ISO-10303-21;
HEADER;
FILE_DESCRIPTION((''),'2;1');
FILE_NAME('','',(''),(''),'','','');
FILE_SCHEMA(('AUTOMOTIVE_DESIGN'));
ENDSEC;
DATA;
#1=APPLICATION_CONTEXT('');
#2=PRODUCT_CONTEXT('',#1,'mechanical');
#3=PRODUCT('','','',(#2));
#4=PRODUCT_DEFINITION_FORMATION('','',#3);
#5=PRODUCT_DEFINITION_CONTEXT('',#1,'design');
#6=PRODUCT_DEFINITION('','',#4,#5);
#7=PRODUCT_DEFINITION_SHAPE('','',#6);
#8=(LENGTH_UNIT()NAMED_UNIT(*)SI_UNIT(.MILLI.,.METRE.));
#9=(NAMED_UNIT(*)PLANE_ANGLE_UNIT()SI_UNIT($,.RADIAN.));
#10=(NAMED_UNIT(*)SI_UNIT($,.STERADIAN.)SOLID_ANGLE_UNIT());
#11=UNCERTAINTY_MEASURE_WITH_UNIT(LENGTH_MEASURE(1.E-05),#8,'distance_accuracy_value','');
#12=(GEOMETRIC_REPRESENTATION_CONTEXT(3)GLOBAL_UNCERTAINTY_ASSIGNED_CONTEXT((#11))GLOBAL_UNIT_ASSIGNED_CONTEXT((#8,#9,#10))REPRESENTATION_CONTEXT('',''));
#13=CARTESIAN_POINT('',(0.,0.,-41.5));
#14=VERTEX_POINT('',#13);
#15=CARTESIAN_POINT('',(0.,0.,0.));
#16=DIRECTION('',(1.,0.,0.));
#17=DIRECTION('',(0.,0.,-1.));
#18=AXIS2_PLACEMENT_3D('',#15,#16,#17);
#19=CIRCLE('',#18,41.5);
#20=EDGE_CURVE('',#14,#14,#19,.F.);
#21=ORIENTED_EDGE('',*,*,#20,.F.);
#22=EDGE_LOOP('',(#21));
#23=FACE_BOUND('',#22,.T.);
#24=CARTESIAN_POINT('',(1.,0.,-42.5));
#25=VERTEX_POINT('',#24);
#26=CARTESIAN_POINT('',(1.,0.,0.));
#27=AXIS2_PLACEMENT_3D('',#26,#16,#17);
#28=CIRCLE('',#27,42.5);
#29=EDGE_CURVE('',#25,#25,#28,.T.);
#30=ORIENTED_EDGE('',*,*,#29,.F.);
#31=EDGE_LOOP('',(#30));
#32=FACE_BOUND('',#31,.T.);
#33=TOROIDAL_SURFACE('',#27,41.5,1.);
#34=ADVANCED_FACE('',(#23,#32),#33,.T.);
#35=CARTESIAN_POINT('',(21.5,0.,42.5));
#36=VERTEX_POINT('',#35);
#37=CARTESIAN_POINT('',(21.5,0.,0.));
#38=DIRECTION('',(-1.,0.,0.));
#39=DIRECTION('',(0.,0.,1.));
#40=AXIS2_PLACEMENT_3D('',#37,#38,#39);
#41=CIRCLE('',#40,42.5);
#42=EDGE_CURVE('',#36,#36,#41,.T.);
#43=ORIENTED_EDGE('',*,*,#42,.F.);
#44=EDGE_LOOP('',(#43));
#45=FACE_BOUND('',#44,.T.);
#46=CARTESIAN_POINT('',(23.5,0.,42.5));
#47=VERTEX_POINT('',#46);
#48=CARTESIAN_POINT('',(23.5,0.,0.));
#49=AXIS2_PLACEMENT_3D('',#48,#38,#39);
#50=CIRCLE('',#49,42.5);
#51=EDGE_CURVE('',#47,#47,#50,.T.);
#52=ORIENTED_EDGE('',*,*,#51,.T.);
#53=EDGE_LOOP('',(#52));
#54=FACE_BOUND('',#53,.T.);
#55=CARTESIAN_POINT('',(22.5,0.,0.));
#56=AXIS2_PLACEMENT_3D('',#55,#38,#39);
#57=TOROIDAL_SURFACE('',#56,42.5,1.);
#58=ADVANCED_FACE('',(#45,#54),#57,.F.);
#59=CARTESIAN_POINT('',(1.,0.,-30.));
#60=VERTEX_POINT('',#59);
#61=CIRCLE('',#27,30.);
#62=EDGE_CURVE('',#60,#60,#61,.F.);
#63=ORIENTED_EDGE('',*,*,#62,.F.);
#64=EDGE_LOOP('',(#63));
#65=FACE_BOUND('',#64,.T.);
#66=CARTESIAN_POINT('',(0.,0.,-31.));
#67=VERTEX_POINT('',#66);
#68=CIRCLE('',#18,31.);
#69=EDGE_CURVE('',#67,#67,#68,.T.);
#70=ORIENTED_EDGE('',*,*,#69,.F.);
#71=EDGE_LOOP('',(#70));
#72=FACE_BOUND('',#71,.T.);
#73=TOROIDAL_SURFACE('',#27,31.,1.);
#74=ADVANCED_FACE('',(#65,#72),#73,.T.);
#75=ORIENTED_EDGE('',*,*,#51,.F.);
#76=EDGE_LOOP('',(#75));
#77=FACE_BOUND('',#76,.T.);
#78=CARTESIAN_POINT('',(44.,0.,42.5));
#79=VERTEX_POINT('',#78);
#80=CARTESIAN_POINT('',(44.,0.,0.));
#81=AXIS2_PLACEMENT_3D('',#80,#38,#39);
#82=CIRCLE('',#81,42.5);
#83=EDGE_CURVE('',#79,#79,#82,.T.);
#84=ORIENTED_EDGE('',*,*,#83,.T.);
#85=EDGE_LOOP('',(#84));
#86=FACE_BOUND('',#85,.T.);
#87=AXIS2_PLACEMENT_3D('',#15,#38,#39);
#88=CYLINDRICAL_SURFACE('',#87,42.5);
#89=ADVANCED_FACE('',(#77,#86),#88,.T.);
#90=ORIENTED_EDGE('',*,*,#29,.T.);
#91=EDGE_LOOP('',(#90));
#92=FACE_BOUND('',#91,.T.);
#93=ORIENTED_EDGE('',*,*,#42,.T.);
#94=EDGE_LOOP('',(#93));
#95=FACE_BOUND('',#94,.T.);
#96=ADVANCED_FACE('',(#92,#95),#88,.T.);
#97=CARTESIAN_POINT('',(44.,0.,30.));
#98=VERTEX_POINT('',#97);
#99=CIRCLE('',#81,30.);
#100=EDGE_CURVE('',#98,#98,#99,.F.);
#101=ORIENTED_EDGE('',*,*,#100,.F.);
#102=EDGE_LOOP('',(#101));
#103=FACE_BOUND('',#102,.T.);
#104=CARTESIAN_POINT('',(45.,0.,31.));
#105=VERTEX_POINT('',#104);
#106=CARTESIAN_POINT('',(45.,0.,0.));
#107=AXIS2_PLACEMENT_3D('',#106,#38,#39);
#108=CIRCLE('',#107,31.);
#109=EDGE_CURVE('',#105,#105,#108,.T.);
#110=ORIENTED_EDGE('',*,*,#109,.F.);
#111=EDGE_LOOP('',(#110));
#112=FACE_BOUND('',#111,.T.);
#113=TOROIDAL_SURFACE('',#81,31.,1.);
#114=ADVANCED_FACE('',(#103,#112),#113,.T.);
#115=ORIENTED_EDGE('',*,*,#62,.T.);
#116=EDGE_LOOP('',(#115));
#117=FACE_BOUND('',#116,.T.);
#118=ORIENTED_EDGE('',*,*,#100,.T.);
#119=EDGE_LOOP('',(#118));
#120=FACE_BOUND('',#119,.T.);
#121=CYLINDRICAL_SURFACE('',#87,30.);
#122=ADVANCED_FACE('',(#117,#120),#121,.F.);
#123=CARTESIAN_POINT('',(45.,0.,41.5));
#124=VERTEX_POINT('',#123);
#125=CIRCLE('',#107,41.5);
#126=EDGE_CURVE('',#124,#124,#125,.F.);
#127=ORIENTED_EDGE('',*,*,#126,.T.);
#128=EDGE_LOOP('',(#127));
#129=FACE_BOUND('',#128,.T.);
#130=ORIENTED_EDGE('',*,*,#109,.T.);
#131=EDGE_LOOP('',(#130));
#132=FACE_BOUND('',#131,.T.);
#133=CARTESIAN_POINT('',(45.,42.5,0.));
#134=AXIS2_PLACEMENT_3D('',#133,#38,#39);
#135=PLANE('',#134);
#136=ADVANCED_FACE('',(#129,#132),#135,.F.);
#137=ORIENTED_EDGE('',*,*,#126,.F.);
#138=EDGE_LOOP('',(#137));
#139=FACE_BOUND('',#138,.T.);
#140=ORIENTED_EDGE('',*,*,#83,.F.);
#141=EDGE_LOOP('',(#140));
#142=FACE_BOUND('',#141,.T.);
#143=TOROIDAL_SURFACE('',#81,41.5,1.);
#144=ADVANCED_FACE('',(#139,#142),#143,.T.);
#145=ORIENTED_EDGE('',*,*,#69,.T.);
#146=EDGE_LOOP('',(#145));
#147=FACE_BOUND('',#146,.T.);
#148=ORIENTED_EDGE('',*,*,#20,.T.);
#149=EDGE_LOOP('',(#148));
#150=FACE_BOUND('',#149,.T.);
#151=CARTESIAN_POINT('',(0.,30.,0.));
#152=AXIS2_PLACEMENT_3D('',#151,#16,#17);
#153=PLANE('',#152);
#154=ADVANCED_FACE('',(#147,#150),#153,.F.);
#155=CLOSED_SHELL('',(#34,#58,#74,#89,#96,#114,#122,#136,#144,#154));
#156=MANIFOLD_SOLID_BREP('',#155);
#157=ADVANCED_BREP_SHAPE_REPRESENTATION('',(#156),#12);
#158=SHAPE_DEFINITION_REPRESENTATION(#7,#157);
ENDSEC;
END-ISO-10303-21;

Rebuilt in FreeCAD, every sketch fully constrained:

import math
import FreeCAD as App
import Part
import Sketcher

V = App.Vector


def edges_at(feature, points):
    """Names of the edges that pass closest to the given points."""
    edges = feature.Shape.Edges
    near = lambda p: min(range(len(edges)), key=lambda i: edges[i].distToShape(Part.Vertex(*p))[0])
    return sorted({f"Edge{near(p) + 1}" for p in points})

doc = App.newDocument("Part")
body = doc.addObject("PartDesign::Body", "Body")

sketch1 = body.newObject("Sketcher::SketchObject", "Sketch")
sketch1.AttachmentSupport = (doc.getObject("XY_Plane"), [""])
sketch1.MapMode = "FlatFace"
sketch1.addGeometry(Part.LineSegment(V(0, 42.5, 0), V(0, 30, 0)), False)
sketch1.addGeometry(Part.LineSegment(V(0, 30, 0), V(45, 30, 0)), False)
sketch1.addGeometry(Part.LineSegment(V(45, 30, 0), V(45, 42.5, 0)), False)
sketch1.addGeometry(Part.LineSegment(V(45, 42.5, 0), V(23.5, 42.5, 0)), False)
sketch1.addGeometry(Part.ArcOfCircle(Part.Circle(V(22.5, 42.5, 0), V(0, 0, 1), 1), math.radians(180), math.radians(360)), False)
sketch1.addGeometry(Part.LineSegment(V(21.5, 42.5, 0), V(0, 42.5, 0)), False)
sketch1.addConstraint(Sketcher.Constraint("Coincident", 0, 2, 1, 1))
sketch1.addConstraint(Sketcher.Constraint("Coincident", 1, 2, 2, 1))
sketch1.addConstraint(Sketcher.Constraint("Coincident", 2, 2, 3, 1))
sketch1.addConstraint(Sketcher.Constraint("Coincident", 3, 2, 4, 2))
sketch1.addConstraint(Sketcher.Constraint("Coincident", 4, 1, 5, 1))
sketch1.addConstraint(Sketcher.Constraint("Coincident", 5, 2, 0, 1))
sketch1.addConstraint(Sketcher.Constraint("Vertical", 0))
sketch1.addConstraint(Sketcher.Constraint("Horizontal", 1))
sketch1.addConstraint(Sketcher.Constraint("Vertical", 2))
sketch1.addConstraint(Sketcher.Constraint("Horizontal", 3))
sketch1.addConstraint(Sketcher.Constraint("Horizontal", 5))
sketch1.addConstraint(Sketcher.Constraint("PointOnObject", 0, 2, -2))
sketch1.addConstraint(Sketcher.Constraint("Horizontal", 4, 3, 2, 2))
sketch1.addConstraint(Sketcher.Constraint("Horizontal", 3, 2, 4, 1))
sketch1.addConstraint(Sketcher.Constraint("Equal", 3, 5))
sketch1.addConstraint(Sketcher.Constraint("Radius", 4, 1.0))
sketch1.addConstraint(Sketcher.Constraint("DistanceX", 1, 1, 1, 2, 45.0))
sketch1.addConstraint(Sketcher.Constraint("DistanceY", 0, 2, 0, 1, 12.5))
sketch1.addConstraint(Sketcher.Constraint("DistanceY", -1, 1, 0, 2, 30.0))
revolution = body.newObject("PartDesign::Revolution", "Revolution")
revolution.Profile = sketch1
revolution.ReferenceAxis = (sketch1, ["H_Axis"])
revolution.Angle = 360
doc.recompute()

fillet = body.newObject("PartDesign::Fillet", "Fillet")
fillet.Base = (revolution, edges_at(revolution, [
    (0, 0, -30),
    (0, 0, -42.5),
    (45, 0, -42.5),
    (45, 0, -30),
]))
fillet.Radius = 1

doc.recompute()
